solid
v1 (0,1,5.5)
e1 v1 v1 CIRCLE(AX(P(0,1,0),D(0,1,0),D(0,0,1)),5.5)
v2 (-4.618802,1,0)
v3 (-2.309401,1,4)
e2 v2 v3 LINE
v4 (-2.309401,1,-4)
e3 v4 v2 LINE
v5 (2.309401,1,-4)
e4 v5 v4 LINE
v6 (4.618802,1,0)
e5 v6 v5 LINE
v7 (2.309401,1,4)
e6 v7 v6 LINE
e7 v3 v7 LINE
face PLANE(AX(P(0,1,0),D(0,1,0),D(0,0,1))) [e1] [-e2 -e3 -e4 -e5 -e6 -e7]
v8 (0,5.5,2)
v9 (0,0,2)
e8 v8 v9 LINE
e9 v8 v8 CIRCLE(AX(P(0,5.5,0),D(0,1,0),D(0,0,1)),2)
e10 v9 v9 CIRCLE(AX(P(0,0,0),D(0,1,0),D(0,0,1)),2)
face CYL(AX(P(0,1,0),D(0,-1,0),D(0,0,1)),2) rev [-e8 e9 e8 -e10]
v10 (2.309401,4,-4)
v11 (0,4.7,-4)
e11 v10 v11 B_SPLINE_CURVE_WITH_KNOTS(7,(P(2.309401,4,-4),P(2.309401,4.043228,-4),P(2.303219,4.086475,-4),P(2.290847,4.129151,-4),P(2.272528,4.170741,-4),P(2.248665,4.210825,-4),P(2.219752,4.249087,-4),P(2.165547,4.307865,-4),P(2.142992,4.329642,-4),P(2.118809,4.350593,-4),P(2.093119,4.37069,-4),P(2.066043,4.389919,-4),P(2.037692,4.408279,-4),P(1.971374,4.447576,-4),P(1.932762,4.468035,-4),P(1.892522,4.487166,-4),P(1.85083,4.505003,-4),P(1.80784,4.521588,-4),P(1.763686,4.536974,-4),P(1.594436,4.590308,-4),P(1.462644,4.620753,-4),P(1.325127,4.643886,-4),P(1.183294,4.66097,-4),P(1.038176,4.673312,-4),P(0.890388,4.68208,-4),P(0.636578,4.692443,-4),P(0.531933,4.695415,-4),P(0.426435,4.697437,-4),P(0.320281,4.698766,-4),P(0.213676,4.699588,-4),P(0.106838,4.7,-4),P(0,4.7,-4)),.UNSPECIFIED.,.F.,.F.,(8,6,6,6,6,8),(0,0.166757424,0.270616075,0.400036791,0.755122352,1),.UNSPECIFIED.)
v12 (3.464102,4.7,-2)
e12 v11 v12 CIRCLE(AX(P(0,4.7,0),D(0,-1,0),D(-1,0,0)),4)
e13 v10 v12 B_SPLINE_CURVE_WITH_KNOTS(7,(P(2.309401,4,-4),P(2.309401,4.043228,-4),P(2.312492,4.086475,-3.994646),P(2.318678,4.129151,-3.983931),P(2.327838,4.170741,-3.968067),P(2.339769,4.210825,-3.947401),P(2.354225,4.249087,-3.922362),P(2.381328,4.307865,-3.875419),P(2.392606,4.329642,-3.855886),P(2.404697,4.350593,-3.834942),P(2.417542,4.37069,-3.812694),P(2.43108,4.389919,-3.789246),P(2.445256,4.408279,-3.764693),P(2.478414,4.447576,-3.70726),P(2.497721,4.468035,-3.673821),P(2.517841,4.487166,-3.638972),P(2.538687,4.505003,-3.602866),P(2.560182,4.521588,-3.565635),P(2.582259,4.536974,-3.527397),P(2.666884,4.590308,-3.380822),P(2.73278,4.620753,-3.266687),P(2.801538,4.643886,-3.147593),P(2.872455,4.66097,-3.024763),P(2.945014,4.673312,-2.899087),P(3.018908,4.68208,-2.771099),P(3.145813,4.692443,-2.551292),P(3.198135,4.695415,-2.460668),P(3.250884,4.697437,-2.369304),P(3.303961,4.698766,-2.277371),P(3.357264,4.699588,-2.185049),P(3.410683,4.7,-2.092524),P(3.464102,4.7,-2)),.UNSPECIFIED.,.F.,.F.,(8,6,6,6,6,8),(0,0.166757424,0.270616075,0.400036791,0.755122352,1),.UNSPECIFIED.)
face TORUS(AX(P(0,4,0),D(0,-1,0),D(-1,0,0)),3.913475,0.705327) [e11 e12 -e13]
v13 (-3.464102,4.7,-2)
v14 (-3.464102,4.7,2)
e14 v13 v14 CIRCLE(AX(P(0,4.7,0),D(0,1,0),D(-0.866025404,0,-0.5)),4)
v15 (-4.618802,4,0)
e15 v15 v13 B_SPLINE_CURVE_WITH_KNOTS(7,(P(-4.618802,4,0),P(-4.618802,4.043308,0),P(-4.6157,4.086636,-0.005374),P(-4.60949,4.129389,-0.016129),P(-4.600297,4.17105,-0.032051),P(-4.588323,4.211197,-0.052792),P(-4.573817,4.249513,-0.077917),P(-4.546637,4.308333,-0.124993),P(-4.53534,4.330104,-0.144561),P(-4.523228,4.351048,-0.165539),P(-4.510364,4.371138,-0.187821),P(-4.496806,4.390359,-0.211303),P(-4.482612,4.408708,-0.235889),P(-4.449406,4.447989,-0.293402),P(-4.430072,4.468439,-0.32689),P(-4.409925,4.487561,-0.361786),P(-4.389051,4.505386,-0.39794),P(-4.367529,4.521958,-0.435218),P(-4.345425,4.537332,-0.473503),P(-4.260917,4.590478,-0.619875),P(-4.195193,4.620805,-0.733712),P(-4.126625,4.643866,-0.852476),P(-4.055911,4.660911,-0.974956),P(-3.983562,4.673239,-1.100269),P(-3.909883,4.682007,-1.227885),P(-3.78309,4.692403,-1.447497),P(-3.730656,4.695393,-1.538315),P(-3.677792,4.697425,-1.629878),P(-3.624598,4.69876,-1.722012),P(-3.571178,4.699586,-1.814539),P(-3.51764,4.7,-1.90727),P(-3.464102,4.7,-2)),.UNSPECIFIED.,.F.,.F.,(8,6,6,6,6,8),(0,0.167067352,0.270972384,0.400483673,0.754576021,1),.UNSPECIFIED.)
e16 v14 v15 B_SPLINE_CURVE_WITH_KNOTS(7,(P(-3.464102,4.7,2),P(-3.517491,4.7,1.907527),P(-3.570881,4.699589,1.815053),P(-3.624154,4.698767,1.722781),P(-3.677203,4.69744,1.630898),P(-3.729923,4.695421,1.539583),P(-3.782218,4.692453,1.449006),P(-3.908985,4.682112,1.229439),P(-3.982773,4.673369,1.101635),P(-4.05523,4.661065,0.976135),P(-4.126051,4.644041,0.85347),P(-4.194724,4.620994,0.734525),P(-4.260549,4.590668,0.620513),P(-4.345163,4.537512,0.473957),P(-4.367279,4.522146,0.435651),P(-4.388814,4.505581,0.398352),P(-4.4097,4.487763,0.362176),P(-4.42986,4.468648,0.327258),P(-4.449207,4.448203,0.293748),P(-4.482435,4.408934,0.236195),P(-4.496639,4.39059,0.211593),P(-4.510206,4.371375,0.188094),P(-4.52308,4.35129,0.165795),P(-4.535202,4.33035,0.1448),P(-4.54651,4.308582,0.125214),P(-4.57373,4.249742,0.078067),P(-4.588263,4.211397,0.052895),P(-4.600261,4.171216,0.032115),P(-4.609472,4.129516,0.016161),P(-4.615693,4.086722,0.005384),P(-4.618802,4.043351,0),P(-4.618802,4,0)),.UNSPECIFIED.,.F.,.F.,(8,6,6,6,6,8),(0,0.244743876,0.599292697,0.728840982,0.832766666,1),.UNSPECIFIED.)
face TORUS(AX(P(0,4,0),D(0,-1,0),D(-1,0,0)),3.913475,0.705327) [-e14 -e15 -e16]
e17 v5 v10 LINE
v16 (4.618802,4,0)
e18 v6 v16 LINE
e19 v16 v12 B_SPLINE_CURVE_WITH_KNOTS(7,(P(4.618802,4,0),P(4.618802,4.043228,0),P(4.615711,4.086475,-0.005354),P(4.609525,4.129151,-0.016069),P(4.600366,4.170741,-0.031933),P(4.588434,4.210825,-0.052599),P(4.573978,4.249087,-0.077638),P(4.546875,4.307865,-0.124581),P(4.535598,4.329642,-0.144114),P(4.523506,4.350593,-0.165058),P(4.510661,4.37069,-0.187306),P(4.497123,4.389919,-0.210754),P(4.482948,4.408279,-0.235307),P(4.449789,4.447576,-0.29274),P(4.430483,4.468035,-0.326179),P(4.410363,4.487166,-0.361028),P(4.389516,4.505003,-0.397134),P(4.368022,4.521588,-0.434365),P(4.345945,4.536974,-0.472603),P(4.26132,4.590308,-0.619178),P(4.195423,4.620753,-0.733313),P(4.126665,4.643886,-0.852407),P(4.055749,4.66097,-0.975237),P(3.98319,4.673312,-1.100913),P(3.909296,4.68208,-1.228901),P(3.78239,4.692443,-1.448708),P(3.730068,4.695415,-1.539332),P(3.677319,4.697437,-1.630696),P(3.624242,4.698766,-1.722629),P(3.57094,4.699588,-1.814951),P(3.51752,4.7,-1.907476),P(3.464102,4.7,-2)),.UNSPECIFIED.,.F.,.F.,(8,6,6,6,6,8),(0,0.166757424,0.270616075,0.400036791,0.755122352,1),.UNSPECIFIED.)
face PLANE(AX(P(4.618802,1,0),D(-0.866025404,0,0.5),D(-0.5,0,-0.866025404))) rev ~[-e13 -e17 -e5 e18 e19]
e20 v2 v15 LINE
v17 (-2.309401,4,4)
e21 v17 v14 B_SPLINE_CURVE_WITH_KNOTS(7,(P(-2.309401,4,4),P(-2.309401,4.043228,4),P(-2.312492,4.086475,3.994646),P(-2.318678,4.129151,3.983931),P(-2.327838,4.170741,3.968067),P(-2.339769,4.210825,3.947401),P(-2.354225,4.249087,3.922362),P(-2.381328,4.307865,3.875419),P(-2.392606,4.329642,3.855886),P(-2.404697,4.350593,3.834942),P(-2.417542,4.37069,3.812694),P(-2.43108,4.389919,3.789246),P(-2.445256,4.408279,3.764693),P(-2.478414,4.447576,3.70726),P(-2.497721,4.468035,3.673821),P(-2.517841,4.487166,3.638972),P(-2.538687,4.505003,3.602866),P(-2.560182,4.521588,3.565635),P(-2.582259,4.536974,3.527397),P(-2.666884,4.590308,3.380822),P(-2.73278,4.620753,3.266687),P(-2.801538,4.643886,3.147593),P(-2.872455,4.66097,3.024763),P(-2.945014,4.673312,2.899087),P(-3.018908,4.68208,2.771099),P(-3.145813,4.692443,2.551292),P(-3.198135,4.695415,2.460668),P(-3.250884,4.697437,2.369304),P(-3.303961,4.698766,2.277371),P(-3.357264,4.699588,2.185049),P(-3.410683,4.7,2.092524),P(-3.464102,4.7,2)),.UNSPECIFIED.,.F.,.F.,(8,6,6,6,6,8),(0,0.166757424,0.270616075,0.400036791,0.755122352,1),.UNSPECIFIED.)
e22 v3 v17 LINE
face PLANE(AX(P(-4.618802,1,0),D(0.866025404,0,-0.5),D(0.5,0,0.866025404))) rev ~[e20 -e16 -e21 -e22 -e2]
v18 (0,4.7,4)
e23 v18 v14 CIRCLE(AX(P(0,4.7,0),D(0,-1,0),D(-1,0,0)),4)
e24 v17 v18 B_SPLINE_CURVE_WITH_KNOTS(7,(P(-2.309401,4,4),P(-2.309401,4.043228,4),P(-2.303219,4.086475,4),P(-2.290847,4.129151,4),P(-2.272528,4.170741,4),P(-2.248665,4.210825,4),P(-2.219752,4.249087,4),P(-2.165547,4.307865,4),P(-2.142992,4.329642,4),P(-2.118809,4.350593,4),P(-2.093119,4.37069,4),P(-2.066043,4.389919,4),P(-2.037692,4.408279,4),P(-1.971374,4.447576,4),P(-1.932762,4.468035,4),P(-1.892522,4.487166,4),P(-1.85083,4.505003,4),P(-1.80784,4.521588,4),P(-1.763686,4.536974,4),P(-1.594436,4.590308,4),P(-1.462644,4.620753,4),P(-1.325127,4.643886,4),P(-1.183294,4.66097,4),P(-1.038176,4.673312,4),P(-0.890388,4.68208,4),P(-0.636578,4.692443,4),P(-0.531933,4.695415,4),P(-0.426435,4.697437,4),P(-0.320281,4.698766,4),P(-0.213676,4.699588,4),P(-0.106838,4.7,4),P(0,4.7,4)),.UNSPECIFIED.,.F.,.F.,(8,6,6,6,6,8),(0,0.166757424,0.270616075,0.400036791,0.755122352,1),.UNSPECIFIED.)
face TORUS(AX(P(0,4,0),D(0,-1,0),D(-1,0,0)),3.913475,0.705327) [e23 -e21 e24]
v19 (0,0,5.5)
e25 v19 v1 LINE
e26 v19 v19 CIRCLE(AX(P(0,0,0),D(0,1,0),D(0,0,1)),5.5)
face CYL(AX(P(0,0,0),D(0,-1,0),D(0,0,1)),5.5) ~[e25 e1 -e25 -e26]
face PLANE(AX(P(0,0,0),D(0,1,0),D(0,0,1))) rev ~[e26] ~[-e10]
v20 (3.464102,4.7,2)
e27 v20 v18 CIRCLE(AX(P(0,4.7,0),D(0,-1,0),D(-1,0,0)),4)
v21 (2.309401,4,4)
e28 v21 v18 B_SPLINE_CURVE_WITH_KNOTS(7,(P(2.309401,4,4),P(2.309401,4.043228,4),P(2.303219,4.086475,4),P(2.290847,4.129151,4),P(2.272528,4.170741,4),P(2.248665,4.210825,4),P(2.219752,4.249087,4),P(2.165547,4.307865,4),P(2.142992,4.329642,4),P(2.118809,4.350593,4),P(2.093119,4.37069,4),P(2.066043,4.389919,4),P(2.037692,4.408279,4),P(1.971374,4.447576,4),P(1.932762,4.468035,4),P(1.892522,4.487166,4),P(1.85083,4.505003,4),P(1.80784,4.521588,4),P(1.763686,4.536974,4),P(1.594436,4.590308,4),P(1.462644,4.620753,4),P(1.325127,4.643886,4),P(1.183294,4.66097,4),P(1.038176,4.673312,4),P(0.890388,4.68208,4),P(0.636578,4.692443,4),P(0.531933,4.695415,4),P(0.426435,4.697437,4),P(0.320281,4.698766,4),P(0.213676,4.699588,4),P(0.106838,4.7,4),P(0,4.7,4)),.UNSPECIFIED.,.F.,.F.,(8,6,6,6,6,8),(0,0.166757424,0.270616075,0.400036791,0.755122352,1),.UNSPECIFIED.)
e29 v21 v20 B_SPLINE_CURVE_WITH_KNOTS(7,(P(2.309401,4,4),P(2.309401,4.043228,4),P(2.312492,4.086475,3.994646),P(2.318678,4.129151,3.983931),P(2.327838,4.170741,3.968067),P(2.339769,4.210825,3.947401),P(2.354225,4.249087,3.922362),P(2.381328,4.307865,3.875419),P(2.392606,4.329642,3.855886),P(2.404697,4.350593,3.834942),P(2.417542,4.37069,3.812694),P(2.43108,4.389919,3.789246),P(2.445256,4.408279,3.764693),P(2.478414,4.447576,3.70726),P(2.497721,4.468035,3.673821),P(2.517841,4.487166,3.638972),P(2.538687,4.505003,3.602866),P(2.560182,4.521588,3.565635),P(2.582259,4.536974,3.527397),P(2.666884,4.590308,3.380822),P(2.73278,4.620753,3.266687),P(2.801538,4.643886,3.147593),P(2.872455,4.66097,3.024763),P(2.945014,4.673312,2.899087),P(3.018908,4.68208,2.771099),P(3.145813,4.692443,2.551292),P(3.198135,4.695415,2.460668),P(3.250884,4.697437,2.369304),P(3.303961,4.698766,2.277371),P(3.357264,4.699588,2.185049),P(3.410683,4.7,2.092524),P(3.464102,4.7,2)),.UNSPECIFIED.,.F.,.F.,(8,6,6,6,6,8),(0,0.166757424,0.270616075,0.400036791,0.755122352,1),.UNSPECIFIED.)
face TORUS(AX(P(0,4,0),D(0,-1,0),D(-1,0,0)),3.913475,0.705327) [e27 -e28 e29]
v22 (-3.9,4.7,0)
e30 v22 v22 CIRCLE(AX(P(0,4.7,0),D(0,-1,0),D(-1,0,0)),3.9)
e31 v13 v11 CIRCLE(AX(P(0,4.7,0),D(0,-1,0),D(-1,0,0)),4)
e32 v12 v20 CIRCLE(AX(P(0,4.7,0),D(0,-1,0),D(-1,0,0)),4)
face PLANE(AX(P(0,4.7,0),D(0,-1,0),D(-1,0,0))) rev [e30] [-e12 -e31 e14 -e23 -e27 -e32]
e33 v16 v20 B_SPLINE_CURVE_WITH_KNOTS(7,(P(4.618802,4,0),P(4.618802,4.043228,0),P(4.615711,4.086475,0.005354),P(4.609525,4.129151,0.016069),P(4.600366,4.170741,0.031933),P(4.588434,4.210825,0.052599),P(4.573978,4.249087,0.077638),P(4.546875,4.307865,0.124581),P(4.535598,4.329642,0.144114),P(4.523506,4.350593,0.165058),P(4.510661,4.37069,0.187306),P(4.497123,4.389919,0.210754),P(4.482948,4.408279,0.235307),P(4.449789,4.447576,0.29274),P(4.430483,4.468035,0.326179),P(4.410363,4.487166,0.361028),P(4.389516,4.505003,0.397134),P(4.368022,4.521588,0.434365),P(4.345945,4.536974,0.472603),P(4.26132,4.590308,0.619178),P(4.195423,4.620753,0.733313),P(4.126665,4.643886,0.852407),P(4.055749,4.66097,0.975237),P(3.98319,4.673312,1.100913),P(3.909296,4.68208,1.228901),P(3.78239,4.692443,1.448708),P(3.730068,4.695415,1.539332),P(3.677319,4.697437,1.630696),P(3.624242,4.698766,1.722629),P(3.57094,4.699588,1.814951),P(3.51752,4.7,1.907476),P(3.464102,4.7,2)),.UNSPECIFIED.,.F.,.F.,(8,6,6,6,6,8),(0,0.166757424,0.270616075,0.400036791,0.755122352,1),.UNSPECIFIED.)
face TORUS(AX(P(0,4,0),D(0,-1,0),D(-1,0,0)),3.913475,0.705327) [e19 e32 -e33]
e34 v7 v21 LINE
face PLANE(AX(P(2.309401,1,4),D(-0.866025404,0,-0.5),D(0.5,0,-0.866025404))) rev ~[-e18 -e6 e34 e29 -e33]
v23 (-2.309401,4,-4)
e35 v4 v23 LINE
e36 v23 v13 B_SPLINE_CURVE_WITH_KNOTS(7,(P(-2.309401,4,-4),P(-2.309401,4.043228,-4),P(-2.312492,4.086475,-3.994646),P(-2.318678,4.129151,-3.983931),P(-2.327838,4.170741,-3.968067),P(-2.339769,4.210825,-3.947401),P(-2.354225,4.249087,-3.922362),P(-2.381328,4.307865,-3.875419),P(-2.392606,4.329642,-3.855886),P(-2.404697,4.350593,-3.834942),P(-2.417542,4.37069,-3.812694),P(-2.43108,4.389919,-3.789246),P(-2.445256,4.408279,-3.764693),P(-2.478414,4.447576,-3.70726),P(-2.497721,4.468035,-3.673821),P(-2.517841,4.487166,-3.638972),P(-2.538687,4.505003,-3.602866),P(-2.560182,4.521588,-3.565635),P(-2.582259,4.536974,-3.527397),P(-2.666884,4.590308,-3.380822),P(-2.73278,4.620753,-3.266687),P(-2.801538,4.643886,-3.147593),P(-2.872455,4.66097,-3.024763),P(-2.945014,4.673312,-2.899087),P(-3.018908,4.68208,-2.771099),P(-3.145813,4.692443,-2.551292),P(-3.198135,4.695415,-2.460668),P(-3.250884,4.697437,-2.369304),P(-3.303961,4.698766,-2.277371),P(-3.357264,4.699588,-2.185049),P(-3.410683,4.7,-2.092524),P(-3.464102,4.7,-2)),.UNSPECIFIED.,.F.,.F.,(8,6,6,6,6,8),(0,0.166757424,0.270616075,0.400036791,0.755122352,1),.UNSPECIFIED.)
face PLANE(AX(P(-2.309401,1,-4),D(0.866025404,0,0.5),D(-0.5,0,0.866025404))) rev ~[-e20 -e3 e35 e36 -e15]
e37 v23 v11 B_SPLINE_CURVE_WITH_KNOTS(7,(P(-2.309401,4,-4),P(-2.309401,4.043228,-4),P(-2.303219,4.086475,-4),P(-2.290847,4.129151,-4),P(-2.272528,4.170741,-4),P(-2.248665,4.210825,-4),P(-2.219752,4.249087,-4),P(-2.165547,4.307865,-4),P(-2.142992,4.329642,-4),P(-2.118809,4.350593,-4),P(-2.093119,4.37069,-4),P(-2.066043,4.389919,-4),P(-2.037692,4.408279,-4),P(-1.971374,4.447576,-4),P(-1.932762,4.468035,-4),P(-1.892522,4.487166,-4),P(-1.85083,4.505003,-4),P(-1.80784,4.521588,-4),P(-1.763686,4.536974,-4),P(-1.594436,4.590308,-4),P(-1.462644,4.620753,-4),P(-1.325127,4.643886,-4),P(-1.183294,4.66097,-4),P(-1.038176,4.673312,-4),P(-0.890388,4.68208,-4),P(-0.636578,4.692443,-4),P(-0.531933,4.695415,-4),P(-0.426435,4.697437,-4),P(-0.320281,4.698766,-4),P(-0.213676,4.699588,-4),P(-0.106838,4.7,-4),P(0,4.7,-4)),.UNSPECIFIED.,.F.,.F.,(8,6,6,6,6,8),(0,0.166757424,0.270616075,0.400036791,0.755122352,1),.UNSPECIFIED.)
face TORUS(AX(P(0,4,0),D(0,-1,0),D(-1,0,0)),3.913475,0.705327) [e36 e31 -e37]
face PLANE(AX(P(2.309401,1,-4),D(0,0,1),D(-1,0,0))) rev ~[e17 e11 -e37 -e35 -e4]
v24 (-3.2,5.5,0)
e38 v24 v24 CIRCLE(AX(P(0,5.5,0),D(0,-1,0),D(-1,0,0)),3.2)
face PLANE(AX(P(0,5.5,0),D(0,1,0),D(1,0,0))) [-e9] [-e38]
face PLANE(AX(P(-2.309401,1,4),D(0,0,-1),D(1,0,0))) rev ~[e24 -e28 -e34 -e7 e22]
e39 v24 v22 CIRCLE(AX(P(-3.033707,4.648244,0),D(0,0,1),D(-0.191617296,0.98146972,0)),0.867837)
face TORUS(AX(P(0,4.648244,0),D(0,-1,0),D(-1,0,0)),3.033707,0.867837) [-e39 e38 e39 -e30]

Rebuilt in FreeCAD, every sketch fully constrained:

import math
import FreeCAD as App
import Part
import Sketcher
Q = App.Units.Quantity

doc = App.newDocument("Part")
body = doc.addObject("PartDesign::Body", "Body")

# Sketch on XZ plane
sketch1 = body.newObject("Sketcher::SketchObject", "Sketch")
sketch1.AttachmentSupport = (doc.getObject("XZ_Plane"), [""])
sketch1.MapMode = "FlatFace"
sketch1.addGeometry([
    Part.Circle(App.Vector(0, 0, 0), App.Vector(0, 0, 1), 5.5),
    Part.Circle(App.Vector(0, 0, 0), App.Vector(0, 0, 1), 2),
], False)
sketch1.addConstraint([
    Sketcher.Constraint("Coincident", 0, 3, -1, 1),
    Sketcher.Constraint("Coincident", 1, 3, -1, 1),
    Sketcher.Constraint("Diameter", 0, 11.0),
    Sketcher.Constraint("Diameter", 1, 4.0),
])
pad1 = body.newObject("PartDesign::Pad", "Pad")
pad1.Profile = sketch1
pad1.Length = 1
pad1.Reversed = True

# Sketch on XZ plane
sketch2 = body.newObject("Sketcher::SketchObject", "Sketch001")
sketch2.AttachmentSupport = (doc.getObject("XZ_Plane"), [""])
sketch2.MapMode = "FlatFace"
sketch2.AttachmentOffset = App.Placement(App.Vector(0, 0, -1), App.Rotation())
sketch2.addGeometry([
    Part.LineSegment(App.Vector(4.618802, 0, 0), App.Vector(2.309401, -4, 0)),  # 0
    Part.LineSegment(App.Vector(2.309401, -4, 0), App.Vector(-2.309401, -4, 0)),  # 1
    Part.LineSegment(App.Vector(-2.309401, -4, 0), App.Vector(-4.618802, 0, 0)),  # 2
    Part.LineSegment(App.Vector(-4.618802, 0, 0), App.Vector(-2.309401, 4, 0)),  # 3
    Part.LineSegment(App.Vector(-2.309401, 4, 0), App.Vector(2.309401, 4, 0)),  # 4
    Part.LineSegment(App.Vector(2.309401, 4, 0), App.Vector(4.618802, 0, 0)),  # 5
    Part.Circle(App.Vector(0, 0, 0), App.Vector(0, 0, 1), 2),  # 6
], False)
sketch2.addConstraint([
    Sketcher.Constraint("Coincident", 0, 2, 1, 1),
    Sketcher.Constraint("Coincident", 1, 2, 2, 1),
    Sketcher.Constraint("Coincident", 2, 2, 3, 1),
    Sketcher.Constraint("Coincident", 3, 2, 4, 1),
    Sketcher.Constraint("Coincident", 4, 2, 5, 1),
    Sketcher.Constraint("Coincident", 5, 2, 0, 1),
    Sketcher.Constraint("Horizontal", 1),
    Sketcher.Constraint("Horizontal", 4),
    Sketcher.Constraint("Coincident", 6, 3, -1, 1),
    Sketcher.Constraint("Symmetric", 0, 2, 3, 2, -1, 1),
    Sketcher.Constraint("Symmetric", 2, 2, 5, 2, -1, 1),
    Sketcher.Constraint("PointOnObject", 2, 2, -1),
    Sketcher.Constraint("Parallel", 2, 5),
    Sketcher.Constraint("Vertical", 1, 2, 3, 2),
    Sketcher.Constraint("Diameter", 6, 4.0),
    Sketcher.Constraint("Angle", 0, Q("-120 deg")),
    Sketcher.Constraint("DistanceY", 0, 2, -1, 1, 4.0),
    Sketcher.Constraint("DistanceX", -1, 1, 0, 2, 2.309401),
])
pad2 = body.newObject("PartDesign::Pad", "Pad001")
pad2.Profile = sketch2
pad2.Length = 4.5
pad2.Reversed = True

# Sketch on XY plane
sketch3 = body.newObject("Sketcher::SketchObject", "Sketch002")
sketch3.AttachmentSupport = (doc.getObject("XY_Plane"), [""])
sketch3.MapMode = "FlatFace"
sketch3.addGeometry([
    Part.ArcOfCircle(Part.Circle(App.Vector(-3.033707, 4.648244, 0), App.Vector(0, 0, 1), 0.867837), math.radians(101.047183), math.radians(176.580967)),  # 0
    Part.LineSegment(App.Vector(-3.2, 5.5, 0), App.Vector(-4.618802, 5.5, 0)),  # 1
    Part.LineSegment(App.Vector(-4.618802, 5.5, 0), App.Vector(-4.618802, 4, 0)),  # 2
    Part.ArcOfCircle(Part.Circle(App.Vector(-3.913475, 4, 0), App.Vector(0, 0, 1), 0.705327), math.radians(97.046438), math.radians(180)),  # 3
    Part.LineSegment(App.Vector(-4, 4.7, 0), App.Vector(-3.9, 4.7, 0)),  # 4
], False)
sketch3.addConstraint([
    Sketcher.Constraint("Coincident", 0, 1, 1, 1),
    Sketcher.Constraint("Coincident", 1, 2, 2, 1),
    Sketcher.Constraint("Tangent", 2, 2, 3, 2),
    Sketcher.Constraint("Coincident", 3, 1, 4, 1),
    Sketcher.Constraint("Coincident", 4, 2, 0, 2),
    Sketcher.Constraint("Horizontal", 1),
    Sketcher.Constraint("Vertical", 2),
    Sketcher.Constraint("Horizontal", 4),
    Sketcher.Constraint("DistanceX", 4, 1, 4, 2, 0.1),
    Sketcher.Constraint("DistanceY", 2, 2, 2, 1, 1.5),
    Sketcher.Constraint("DistanceY", -1, 1, 3, 3, 4.0),
    Sketcher.Constraint("DistanceX", 3, 1, -1, 1, 4.0),
    Sketcher.Constraint("DistanceX", 0, 1, -1, 1, 3.2),
    Sketcher.Constraint("DistanceY", -1, 1, 3, 1, 4.7),
    Sketcher.Constraint("Radius", 0, 0.867837),
    Sketcher.Constraint("Radius", 3, 0.705327),
])
groove = body.newObject("PartDesign::Groove", "Groove")
groove.Profile = sketch3
groove.ReferenceAxis = (sketch3, ["V_Axis"])
groove.Angle = 360

doc.recompute()
